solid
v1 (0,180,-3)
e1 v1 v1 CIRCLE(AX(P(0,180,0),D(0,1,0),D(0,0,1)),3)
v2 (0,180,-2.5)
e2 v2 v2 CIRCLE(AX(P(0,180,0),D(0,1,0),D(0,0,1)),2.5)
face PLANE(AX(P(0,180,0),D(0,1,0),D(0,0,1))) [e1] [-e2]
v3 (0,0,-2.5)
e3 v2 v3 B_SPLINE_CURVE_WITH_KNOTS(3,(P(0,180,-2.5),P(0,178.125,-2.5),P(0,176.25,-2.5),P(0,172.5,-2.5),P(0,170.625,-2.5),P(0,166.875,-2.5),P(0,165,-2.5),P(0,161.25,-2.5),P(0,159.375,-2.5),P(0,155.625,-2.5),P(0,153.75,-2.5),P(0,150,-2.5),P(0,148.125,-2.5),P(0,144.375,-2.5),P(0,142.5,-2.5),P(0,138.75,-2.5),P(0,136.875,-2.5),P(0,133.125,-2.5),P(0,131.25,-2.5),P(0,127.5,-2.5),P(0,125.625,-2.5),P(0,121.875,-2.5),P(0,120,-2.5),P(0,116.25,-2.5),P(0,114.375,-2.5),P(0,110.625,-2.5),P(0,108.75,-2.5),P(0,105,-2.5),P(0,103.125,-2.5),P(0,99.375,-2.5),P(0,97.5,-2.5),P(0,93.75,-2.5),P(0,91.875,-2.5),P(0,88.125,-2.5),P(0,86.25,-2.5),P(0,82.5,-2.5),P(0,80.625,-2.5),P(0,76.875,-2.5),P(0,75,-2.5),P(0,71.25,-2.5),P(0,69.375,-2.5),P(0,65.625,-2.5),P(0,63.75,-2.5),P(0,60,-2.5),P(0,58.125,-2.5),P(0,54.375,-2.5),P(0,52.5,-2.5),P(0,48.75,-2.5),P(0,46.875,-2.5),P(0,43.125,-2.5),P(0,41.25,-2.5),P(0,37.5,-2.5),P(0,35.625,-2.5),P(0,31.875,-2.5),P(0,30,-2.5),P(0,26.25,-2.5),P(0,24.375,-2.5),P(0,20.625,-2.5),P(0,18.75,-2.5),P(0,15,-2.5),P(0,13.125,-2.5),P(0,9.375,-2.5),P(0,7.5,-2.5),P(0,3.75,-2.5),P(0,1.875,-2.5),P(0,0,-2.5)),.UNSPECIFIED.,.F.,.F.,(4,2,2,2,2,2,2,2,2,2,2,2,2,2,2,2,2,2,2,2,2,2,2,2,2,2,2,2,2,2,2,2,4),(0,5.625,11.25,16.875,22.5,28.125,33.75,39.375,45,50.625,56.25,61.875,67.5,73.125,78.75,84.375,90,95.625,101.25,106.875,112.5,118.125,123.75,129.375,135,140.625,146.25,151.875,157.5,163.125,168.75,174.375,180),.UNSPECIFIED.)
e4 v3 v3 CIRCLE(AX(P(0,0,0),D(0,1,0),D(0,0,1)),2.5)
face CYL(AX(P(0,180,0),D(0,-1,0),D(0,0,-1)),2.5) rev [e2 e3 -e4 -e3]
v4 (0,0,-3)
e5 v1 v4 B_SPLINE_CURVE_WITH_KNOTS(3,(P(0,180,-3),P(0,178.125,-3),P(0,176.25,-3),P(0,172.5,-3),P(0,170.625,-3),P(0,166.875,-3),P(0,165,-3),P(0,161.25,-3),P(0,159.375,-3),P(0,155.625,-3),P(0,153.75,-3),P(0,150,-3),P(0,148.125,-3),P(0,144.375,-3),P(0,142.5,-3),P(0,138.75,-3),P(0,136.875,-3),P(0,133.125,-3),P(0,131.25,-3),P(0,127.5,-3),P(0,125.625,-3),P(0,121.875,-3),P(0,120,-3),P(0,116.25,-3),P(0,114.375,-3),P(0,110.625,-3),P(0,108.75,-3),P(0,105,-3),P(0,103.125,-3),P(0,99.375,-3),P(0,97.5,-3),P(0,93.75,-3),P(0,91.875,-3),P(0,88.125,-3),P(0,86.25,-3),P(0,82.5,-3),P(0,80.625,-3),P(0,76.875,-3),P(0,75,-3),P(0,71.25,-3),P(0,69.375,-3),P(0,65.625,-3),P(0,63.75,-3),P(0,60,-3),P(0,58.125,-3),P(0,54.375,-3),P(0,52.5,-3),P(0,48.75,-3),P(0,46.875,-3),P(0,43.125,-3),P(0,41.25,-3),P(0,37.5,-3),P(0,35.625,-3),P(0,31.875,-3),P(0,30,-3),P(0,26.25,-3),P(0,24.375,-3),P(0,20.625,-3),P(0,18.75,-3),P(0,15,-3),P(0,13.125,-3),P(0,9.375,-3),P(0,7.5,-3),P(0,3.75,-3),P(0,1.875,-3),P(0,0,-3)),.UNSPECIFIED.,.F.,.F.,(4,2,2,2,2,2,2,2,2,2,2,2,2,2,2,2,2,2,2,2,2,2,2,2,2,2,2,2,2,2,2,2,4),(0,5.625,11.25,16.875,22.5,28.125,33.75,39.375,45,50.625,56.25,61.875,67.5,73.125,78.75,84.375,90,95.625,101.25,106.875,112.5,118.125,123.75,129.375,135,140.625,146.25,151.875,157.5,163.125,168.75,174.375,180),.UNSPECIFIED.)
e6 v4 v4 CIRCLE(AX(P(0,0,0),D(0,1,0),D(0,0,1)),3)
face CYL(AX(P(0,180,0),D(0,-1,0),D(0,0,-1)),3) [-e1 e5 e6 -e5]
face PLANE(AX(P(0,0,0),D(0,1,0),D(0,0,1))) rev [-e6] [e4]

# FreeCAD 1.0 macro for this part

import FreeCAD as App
import Part
import Sketcher

doc = App.newDocument("Part")
body = doc.addObject("PartDesign::Body", "Body")

# Sketch on XZ plane
sketch1 = doc.addObject("Sketcher::SketchObject", "Sketch")
body.addObject(sketch1)
sketch1.AttachmentSupport = (doc.XZ_Plane, [""])
sketch1.MapMode = "FlatFace"
sketch1.addGeometry([
    Part.Circle(App.Vector(0, 0, 0), App.Vector(0, 0, 1), 3),
    Part.Circle(App.Vector(0, 0, 0), App.Vector(0, 0, 1), 2.5),
], False)
sketch1.addConstraint([
    Sketcher.Constraint("Coincident", 0, 3, -1, 1),
    Sketcher.Constraint("Coincident", 1, 3, -1, 1),
    Sketcher.Constraint("Diameter", 0, 6.0),
    Sketcher.Constraint("Diameter", 1, 5.0),
])
pad1 = doc.addObject("PartDesign::Pad", "Pad")
body.addObject(pad1)
pad1.Profile = sketch1
pad1.Length = 180
pad1.Reversed = True

doc.recompute()
